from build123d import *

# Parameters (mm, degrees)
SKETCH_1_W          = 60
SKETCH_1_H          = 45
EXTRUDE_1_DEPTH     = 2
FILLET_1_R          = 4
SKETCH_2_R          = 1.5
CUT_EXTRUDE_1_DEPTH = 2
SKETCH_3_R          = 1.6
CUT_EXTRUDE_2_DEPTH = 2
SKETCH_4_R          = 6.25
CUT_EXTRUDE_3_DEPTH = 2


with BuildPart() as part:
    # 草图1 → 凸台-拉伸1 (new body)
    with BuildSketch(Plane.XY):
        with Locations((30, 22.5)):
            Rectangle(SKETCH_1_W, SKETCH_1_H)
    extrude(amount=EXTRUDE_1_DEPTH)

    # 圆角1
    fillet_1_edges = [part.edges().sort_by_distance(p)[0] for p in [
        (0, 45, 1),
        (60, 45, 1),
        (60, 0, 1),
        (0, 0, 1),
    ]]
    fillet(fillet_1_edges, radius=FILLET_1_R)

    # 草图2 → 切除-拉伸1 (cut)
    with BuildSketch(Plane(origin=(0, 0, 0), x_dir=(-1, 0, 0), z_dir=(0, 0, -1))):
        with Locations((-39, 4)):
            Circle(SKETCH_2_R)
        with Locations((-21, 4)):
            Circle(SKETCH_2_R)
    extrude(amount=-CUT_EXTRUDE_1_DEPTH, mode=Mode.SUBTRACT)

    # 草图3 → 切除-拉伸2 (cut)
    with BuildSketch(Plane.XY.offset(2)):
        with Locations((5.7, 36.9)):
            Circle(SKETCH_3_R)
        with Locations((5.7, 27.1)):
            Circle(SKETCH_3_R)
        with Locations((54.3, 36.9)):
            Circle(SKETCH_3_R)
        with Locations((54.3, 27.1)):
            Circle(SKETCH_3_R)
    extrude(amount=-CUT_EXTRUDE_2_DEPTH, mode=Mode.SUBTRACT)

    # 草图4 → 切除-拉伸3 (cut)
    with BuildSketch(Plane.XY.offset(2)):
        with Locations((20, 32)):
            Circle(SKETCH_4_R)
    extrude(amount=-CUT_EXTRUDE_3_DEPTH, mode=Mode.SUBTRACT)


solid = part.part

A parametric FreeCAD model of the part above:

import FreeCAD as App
import Part
import Sketcher


def edges_at(feature, points):
    """Names of the edges that pass closest to the given points."""
    edges = feature.Shape.Edges
    near = lambda p: min(range(len(edges)), key=lambda i: edges[i].distToShape(Part.Vertex(*p))[0])
    return sorted({f"Edge{near(p) + 1}" for p in points})


def add_polygon(sketch, points):
    """Adds a closed chain of lines whose ends are joined by coincident constraints."""
    first, n = sketch.GeometryCount, len(points)
    for a, b in zip(points, points[1:] + points[:1]):
        sketch.addGeometry(Part.LineSegment(App.Vector(*a, 0), App.Vector(*b, 0)), False)
    for i in range(n):
        sketch.addConstraint(Sketcher.Constraint("Coincident", first + i, 2, first + (i + 1) % n, 1))

doc = App.newDocument("Part")
body = doc.addObject("PartDesign::Body", "Body")

# Sketch on XY plane
sketch1 = doc.addObject("Sketcher::SketchObject", "Sketch")
body.addObject(sketch1)
sketch1.AttachmentSupport = (doc.XY_Plane, [""])
sketch1.MapMode = "FlatFace"
add_polygon(sketch1, [(0, 45), (0, 0), (60, 0), (60, 45)])  # lines 0-3
sketch1.addConstraint([
    Sketcher.Constraint("Vertical", 0),
    Sketcher.Constraint("Horizontal", 1),
    Sketcher.Constraint("Vertical", 2),
    Sketcher.Constraint("Horizontal", 3),
    Sketcher.Constraint("Coincident", 0, 2, -1, 1),
    Sketcher.Constraint("DistanceX", 1, 1, 1, 2, 60.0),
    Sketcher.Constraint("DistanceY", 0, 2, 0, 1, 45.0),
])
pad1 = doc.addObject("PartDesign::Pad", "Pad")
body.addObject(pad1)
pad1.Profile = sketch1
pad1.Length = 2
doc.recompute()

fillet = doc.addObject("PartDesign::Fillet", "Fillet")
body.addObject(fillet)
fillet.Base = (pad1, edges_at(pad1, [
    (0, 45, 1),
    (60, 45, 1),
    (60, 0, 1),
    (0, 0, 1),
]))
fillet.Radius = 4

# Sketch on XY plane
sketch2 = doc.addObject("Sketcher::SketchObject", "Sketch001")
body.addObject(sketch2)
sketch2.AttachmentSupport = (doc.XY_Plane, [""])
sketch2.MapMode = "FlatFace"
sketch2.addGeometry([
    Part.Circle(App.Vector(39, 4, 0), App.Vector(0, 0, 1), 1.5),
    Part.Circle(App.Vector(21, 4, 0), App.Vector(0, 0, 1), 1.5),
], False)
sketch2.addConstraint([
    Sketcher.Constraint("Equal", 0, 1),
    Sketcher.Constraint("Horizontal", 0, 3, 1, 3),
    Sketcher.Constraint("Diameter", 0, 3.0),
    Sketcher.Constraint("DistanceX", -1, 1, 0, 3, 39.0),
    Sketcher.Constraint("DistanceY", -1, 1, 0, 3, 4.0),
    Sketcher.Constraint("DistanceX", -1, 1, 1, 3, 21.0),
])
pocket1 = doc.addObject("PartDesign::Pocket", "Pocket")
body.addObject(pocket1)
pocket1.Profile = sketch2
pocket1.Length = 2
pocket1.Reversed = True

# Sketch on XY plane
sketch3 = doc.addObject("Sketcher::SketchObject", "Sketch002")
body.addObject(sketch3)
sketch3.AttachmentSupport = (doc.XY_Plane, [""])
sketch3.MapMode = "FlatFace"
sketch3.AttachmentOffset = App.Placement(App.Vector(0, 0, 2), App.Rotation())
sketch3.addGeometry([
    Part.Circle(App.Vector(5.7, 36.9, 0), App.Vector(0, 0, 1), 1.6),
    Part.Circle(App.Vector(5.7, 27.1, 0), App.Vector(0, 0, 1), 1.6),
    Part.Circle(App.Vector(54.3, 36.9, 0), App.Vector(0, 0, 1), 1.6),
    Part.Circle(App.Vector(54.3, 27.1, 0), App.Vector(0, 0, 1), 1.6),
], False)
sketch3.addConstraint([
    Sketcher.Constraint("Equal", 0, 1),
    Sketcher.Constraint("Equal", 1, 2),
    Sketcher.Constraint("Equal", 2, 3),
    Sketcher.Constraint("Horizontal", 0, 3, 2, 3),
    Sketcher.Constraint("Horizontal", 1, 3, 3, 3),
    Sketcher.Constraint("Vertical", 0, 3, 1, 3),
    Sketcher.Constraint("Vertical", 2, 3, 3, 3),
    Sketcher.Constraint("Diameter", 0, 3.2),
    Sketcher.Constraint("DistanceX", -1, 1, 0, 3, 5.7),
    Sketcher.Constraint("DistanceY", -1, 1, 0, 3, 36.9),
    Sketcher.Constraint("DistanceY", -1, 1, 1, 3, 27.1),
    Sketcher.Constraint("DistanceX", -1, 1, 2, 3, 54.3),
])
pocket2 = doc.addObject("PartDesign::Pocket", "Pocket001")
body.addObject(pocket2)
pocket2.Profile = sketch3
pocket2.Length = 2

# Sketch on XY plane
sketch4 = doc.addObject("Sketcher::SketchObject", "Sketch003")
body.addObject(sketch4)
sketch4.AttachmentSupport = (doc.XY_Plane, [""])
sketch4.MapMode = "FlatFace"
sketch4.AttachmentOffset = App.Placement(App.Vector(0, 0, 2), App.Rotation())
sketch4.addGeometry(Part.Circle(App.Vector(20, 32, 0), App.Vector(0, 0, 1), 6), False)
sketch4.addConstraint([
    Sketcher.Constraint("Diameter", 0, 12.5),
    Sketcher.Constraint("DistanceX", -1, 1, 0, 3, 20.0),
    Sketcher.Constraint("DistanceY", -1, 1, 0, 3, 32.0),
])
pocket3 = doc.addObject("PartDesign::Pocket", "Pocket002")
body.addObject(pocket3)
pocket3.Profile = sketch4
pocket3.Length = 2

doc.recompute()
